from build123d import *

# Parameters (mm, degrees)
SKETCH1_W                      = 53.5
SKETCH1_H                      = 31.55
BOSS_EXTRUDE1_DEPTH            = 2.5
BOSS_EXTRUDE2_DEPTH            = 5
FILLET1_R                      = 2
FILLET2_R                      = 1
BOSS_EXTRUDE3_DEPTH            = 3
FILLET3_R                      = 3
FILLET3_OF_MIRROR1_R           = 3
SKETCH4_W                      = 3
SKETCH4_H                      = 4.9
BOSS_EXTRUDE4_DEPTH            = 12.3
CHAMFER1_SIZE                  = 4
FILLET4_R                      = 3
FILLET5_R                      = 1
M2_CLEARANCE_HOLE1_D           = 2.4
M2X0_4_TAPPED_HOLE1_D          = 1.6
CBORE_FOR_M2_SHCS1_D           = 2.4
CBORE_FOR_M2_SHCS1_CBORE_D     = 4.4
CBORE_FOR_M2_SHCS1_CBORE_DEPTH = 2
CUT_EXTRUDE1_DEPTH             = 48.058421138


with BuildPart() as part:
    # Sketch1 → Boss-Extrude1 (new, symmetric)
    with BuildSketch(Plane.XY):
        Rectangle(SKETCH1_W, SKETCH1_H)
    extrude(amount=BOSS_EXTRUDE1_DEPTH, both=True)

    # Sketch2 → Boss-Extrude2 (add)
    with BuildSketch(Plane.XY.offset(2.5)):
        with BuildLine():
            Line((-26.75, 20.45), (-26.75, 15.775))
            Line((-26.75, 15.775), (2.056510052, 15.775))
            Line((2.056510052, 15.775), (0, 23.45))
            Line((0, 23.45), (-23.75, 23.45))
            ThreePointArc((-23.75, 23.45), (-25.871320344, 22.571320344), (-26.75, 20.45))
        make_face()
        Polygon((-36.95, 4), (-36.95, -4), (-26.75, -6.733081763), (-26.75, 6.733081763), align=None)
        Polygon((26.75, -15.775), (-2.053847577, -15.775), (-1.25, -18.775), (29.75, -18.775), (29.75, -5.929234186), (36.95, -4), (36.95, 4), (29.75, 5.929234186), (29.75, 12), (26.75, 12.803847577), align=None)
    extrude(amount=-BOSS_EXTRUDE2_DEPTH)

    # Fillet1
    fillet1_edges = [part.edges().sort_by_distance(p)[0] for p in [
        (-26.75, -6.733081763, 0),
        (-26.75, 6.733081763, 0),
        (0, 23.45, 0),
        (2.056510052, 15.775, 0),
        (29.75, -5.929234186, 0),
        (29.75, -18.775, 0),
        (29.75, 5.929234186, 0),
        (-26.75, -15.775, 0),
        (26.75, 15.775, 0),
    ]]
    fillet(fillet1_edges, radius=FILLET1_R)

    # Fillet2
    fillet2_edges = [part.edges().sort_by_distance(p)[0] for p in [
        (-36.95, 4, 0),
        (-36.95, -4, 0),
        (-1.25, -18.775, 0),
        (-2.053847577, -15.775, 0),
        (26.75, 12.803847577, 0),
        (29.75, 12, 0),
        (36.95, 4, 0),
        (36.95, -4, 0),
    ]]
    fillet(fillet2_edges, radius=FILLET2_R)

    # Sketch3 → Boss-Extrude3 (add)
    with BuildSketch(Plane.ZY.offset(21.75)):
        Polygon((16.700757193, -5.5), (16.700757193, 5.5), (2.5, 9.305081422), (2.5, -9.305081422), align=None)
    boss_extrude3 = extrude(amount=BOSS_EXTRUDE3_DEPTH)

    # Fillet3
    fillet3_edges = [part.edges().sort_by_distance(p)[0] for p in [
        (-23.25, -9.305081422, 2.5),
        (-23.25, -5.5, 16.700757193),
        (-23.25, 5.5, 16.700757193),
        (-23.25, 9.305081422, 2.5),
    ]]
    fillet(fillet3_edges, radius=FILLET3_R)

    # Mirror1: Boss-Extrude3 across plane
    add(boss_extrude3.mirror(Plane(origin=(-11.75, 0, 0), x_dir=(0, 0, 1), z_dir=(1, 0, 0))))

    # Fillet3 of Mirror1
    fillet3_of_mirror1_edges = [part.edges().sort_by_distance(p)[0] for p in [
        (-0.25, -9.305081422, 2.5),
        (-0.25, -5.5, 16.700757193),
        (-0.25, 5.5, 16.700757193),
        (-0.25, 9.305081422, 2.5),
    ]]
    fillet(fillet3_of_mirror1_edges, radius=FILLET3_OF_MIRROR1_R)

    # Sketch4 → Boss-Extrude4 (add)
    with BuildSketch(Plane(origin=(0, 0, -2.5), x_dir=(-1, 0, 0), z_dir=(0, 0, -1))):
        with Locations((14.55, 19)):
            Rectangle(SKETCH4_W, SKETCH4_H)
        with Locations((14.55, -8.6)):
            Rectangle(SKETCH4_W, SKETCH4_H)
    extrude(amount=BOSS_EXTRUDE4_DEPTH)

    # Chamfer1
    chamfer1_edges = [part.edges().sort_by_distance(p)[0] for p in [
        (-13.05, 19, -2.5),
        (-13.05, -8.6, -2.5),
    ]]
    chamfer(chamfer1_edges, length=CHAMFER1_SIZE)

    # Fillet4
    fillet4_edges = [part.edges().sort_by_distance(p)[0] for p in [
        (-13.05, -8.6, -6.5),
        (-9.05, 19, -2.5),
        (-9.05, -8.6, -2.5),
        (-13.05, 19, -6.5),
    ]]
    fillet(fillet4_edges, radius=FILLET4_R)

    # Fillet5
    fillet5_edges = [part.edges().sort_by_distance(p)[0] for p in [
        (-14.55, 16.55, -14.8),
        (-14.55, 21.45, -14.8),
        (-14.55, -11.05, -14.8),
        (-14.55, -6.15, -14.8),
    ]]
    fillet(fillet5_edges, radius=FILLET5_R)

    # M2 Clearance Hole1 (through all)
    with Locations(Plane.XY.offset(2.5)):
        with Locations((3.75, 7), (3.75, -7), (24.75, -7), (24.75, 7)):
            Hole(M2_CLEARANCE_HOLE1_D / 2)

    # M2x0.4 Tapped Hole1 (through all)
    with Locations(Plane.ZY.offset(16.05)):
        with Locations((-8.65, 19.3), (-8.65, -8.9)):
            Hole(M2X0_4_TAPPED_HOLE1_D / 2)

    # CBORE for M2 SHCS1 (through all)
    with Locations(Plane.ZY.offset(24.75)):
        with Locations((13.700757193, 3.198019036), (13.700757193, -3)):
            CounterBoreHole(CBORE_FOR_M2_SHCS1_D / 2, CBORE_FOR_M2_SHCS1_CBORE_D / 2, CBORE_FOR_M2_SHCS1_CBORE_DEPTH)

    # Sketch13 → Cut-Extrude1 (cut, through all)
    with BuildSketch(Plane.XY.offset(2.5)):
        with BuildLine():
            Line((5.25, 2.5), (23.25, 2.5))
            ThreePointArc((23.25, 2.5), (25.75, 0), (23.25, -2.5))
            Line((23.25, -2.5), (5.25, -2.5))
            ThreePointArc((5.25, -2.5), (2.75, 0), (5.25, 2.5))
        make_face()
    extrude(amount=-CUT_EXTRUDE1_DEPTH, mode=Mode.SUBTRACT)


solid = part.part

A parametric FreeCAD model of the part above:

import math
import FreeCAD as App
import Part
import Sketcher
from FreeCAD import Vector
Q = App.Units.Quantity


def edges_at(feature, points):
    """Names of the edges that pass closest to the given points."""
    edges = feature.Shape.Edges
    near = lambda p: min(range(len(edges)), key=lambda i: edges[i].distToShape(Part.Vertex(*p))[0])
    return sorted({f"Edge{near(p) + 1}" for p in points})

doc = App.newDocument("Part")
body = doc.addObject("PartDesign::Body", "Body")

sketch1 = body.newObject("Sketcher::SketchObject", "Sketch")
sketch1.AttachmentSupport = (doc.getObject("XY_Plane"), [""])
sketch1.MapMode = "FlatFace"
sketch1.addGeometry([
    Part.LineSegment(Vector(-27, 16, 0), Vector(-27, -16, 0)),
    Part.LineSegment(Vector(-27, -16, 0), Vector(27, -16, 0)),
    Part.LineSegment(Vector(27, -16, 0), Vector(27, 16, 0)),
    Part.LineSegment(Vector(27, 16, 0), Vector(-27, 16, 0)),
], False)
sketch1.addConstraint([
    Sketcher.Constraint("Coincident", 0, 2, 1, 1),
    Sketcher.Constraint("Coincident", 1, 2, 2, 1),
    Sketcher.Constraint("Coincident", 2, 2, 3, 1),
    Sketcher.Constraint("Coincident", 3, 2, 0, 1),
    Sketcher.Constraint("Vertical", 0),
    Sketcher.Constraint("Horizontal", 1),
    Sketcher.Constraint("Vertical", 2),
    Sketcher.Constraint("Horizontal", 3),
    Sketcher.Constraint("Symmetric", 0, 2, 2, 2, -1, 1),
    Sketcher.Constraint("DistanceX", 1, 1, 1, 2, 53.5),
    Sketcher.Constraint("DistanceY", 0, 2, 0, 1, 31.55),
])
pad1 = body.newObject("PartDesign::Pad", "Pad")
pad1.Profile = sketch1
pad1.Length = 5
pad1.Midplane = True

sketch2 = body.newObject("Sketcher::SketchObject", "Sketch001")
sketch2.AttachmentSupport = (doc.getObject("XY_Plane"), [""])
sketch2.MapMode = "FlatFace"
sketch2.AttachmentOffset = App.Placement(Vector(0, 0, 2.5), App.Rotation())
sketch2.addGeometry([
    Part.LineSegment(Vector(-26.8, 20.4, 0), Vector(-26.8, 15.8, 0)),
    Part.LineSegment(Vector(-26.8, 15.8, 0), Vector(2.1, 15.8, 0)),
    Part.LineSegment(Vector(2.1, 15.8, 0), Vector(0, 23.4, 0)),
    Part.LineSegment(Vector(0, 23.4, 0), Vector(-23.8, 23.4, 0)),
    Part.ArcOfCircle(Part.Circle(Vector(-23.8, 20.5, 0), Vector(0, 0, 1), 3), math.radians(90), math.radians(180)),
    Part.LineSegment(Vector(-37, 4, 0), Vector(-37, -4, 0)),
    Part.LineSegment(Vector(-37, -4, 0), Vector(-26.8, -6.7, 0)),
    Part.LineSegment(Vector(-26.8, -6.7, 0), Vector(-26.8, 6.7, 0)),
    Part.LineSegment(Vector(-26.8, 6.7, 0), Vector(-37, 4, 0)),
    Part.LineSegment(Vector(26.8, -15.8, 0), Vector(-2.1, -15.8, 0)),
    Part.LineSegment(Vector(-2.1, -15.8, 0), Vector(-1.2, -18.8, 0)),
    Part.LineSegment(Vector(-1.2, -18.8, 0), Vector(29.8, -18.8, 0)),
    Part.LineSegment(Vector(29.8, -18.8, 0), Vector(29.8, -5.9, 0)),
    Part.LineSegment(Vector(29.8, -5.9, 0), Vector(37, -4, 0)),
    Part.LineSegment(Vector(37, -4, 0), Vector(37, 4, 0)),
    Part.LineSegment(Vector(37, 4, 0), Vector(29.8, 5.9, 0)),
    Part.LineSegment(Vector(29.8, 5.9, 0), Vector(29.8, 12, 0)),
    Part.LineSegment(Vector(29.8, 12, 0), Vector(26.8, 12.8, 0)),
    Part.LineSegment(Vector(26.8, 12.8, 0), Vector(26.8, -15.8, 0)),
], False)
sketch2.addConstraint([
    Sketcher.Constraint("Coincident", 0, 2, 1, 1),
    Sketcher.Constraint("Coincident", 1, 2, 2, 1),
    Sketcher.Constraint("Coincident", 2, 2, 3, 1),
    Sketcher.Constraint("Tangent", 3, 2, 4, 1),
    Sketcher.Constraint("Tangent", 4, 2, 0, 1),
    Sketcher.Constraint("Coincident", 5, 2, 6, 1),
    Sketcher.Constraint("Coincident", 6, 2, 7, 1),
    Sketcher.Constraint("Coincident", 7, 2, 8, 1),
    Sketcher.Constraint("Coincident", 8, 2, 5, 1),
    Sketcher.Constraint("Coincident", 9, 2, 10, 1),
    Sketcher.Constraint("Coincident", 10, 2, 11, 1),
    Sketcher.Constraint("Coincident", 11, 2, 12, 1),
    Sketcher.Constraint("Coincident", 12, 2, 13, 1),
    Sketcher.Constraint("Coincident", 13, 2, 14, 1),
    Sketcher.Constraint("Coincident", 14, 2, 15, 1),
    Sketcher.Constraint("Coincident", 15, 2, 16, 1),
    Sketcher.Constraint("Coincident", 16, 2, 17, 1),
    Sketcher.Constraint("Coincident", 17, 2, 18, 1),
    Sketcher.Constraint("Coincident", 18, 2, 9, 1),
    Sketcher.Constraint("Vertical", 0),
    Sketcher.Constraint("Horizontal", 1),
    Sketcher.Constraint("Horizontal", 3),
    Sketcher.Constraint("Vertical", 5),
    Sketcher.Constraint("Vertical", 7),
    Sketcher.Constraint("Horizontal", 9),
    Sketcher.Constraint("Horizontal", 11),
    Sketcher.Constraint("Vertical", 12),
    Sketcher.Constraint("Vertical", 14),
    Sketcher.Constraint("Vertical", 16),
    Sketcher.Constraint("Vertical", 18),
    Sketcher.Constraint("Symmetric", 8, 2, 13, 2, -1, 1),
    Sketcher.Constraint("Symmetric", 0, 2, 18, 2, -1, 1),
    Sketcher.Constraint("Symmetric", 12, 2, 15, 2, -1),
    Sketcher.Constraint("PointOnObject", 2, 2, -2),
    Sketcher.Constraint("Perpendicular", 2, 8),
    Sketcher.Constraint("Perpendicular", 8, 10),
    Sketcher.Constraint("Perpendicular", 10, 13),
    Sketcher.Constraint("Parallel", 6, 15),
    Sketcher.Constraint("Parallel", 15, 17),
    Sketcher.Constraint("Horizontal", 5, 2, 13, 2),
    Sketcher.Constraint("Horizontal", 8, 2, 14, 2),
    Sketcher.Constraint("Vertical", 4, 2, 6, 2),
    Sketcher.Constraint("Equal", 10, 17),
    Sketcher.Constraint("Radius", 4, 3.0),
    Sketcher.Constraint("DistanceX", 11, 1, 11, 2, 31.0),
    Sketcher.Constraint("DistanceY", 5, 2, 5, 1, 8.0),
    Sketcher.Constraint("Angle", 2, Q("105 deg")),
    Sketcher.Constraint("DistanceY", -1, 1, 16, 2, 12.0),
    Sketcher.Constraint("DistanceY", 10, 2, 9, 2, 3.0),
    Sketcher.Constraint("DistanceX", 3, 2, 3, 1, 23.75),
    Sketcher.Constraint("DistanceX", 5, 2, 0, 2, 10.2),
    Sketcher.Constraint("DistanceY", 0, 2, 0, 1, 4.675),
    Sketcher.Constraint("DistanceY", -1, 1, 4, 3, 20.45),
])
pad2 = body.newObject("PartDesign::Pad", "Pad001")
pad2.Profile = sketch2
pad2.Length = 5
pad2.Reversed = True
doc.recompute()

fillet = body.newObject("PartDesign::Fillet", "Fillet")
fillet.Base = (pad2, edges_at(pad2, [
    (-26.75, -6.733, 0),
    (-26.75, 6.733, 0),
    (0, 23.45, 0),
    (2.057, 15.775, 0),
    (29.75, -5.929, 0),
    (29.75, -18.775, 0),
    (29.75, 5.929, 0),
    (-26.75, -15.775, 0),
    (26.75, 15.775, 0),
]))
fillet.Radius = 2
doc.recompute()

fillet2 = body.newObject("PartDesign::Fillet", "Fillet001")
fillet2.Base = (fillet, edges_at(fillet, [
    (-36.95, 4, 0),
    (-36.95, -4, 0),
    (-1.25, -18.775, 0),
    (-2.054, -15.775, 0),
    (26.75, 12.804, 0),
    (29.75, 12, 0),
    (36.95, 4, 0),
    (36.95, -4, 0),
]))
fillet2.Radius = 1

sketch3 = body.newObject("Sketcher::SketchObject", "Sketch002")
sketch3.AttachmentSupport = (doc.getObject("YZ_Plane"), [""])
sketch3.MapMode = "FlatFace"
sketch3.AttachmentOffset = App.Placement(Vector(0, 0, -21.75), App.Rotation())
sketch3.addGeometry([
    Part.LineSegment(Vector(-6, 17, 0), Vector(6, 17, 0)),
    Part.LineSegment(Vector(6, 17, 0), Vector(9, 2, 0)),
    Part.LineSegment(Vector(9, 2, 0), Vector(-9, 2, 0)),
    Part.LineSegment(Vector(-9, 2, 0), Vector(-6, 17, 0)),
], False)
sketch3.addConstraint([
    Sketcher.Constraint("Coincident", 0, 2, 1, 1),
    Sketcher.Constraint("Coincident", 1, 2, 2, 1),
    Sketcher.Constraint("Coincident", 2, 2, 3, 1),
    Sketcher.Constraint("Coincident", 3, 2, 0, 1),
    Sketcher.Constraint("Horizontal", 0),
    Sketcher.Constraint("Horizontal", 2),
    Sketcher.Constraint("Equal", 1, 3),
    Sketcher.Constraint("DistanceX", 0, 1, 0, 2, 11.0),
    Sketcher.Constraint("Angle", 1, Q("-75 deg")),
    Sketcher.Constraint("DistanceX", -1, 1, 0, 2, 5.5),
    Sketcher.Constraint("DistanceY", -1, 1, 1, 2, 2.5),
    Sketcher.Constraint("DistanceX", 2, 2, 2, 1, 18.610163),
])
pad3 = body.newObject("PartDesign::Pad", "Pad002")
pad3.Profile = sketch3
pad3.Length = 3
pad3.Reversed = True
doc.recompute()

fillet3 = body.newObject("PartDesign::Fillet", "Fillet002")
fillet3.Base = (pad3, edges_at(pad3, [
    (-23.25, -9.305, 2.5),
    (-23.25, -5.5, 16.701),
    (-23.25, 5.5, 16.701),
    (-23.25, 9.305, 2.5),
]))
fillet3.Radius = 3
doc.recompute()

datumplane = body.newObject("PartDesign::Plane", "DatumPlane")
datumplane.AttachmentSupport = (doc.getObject("YZ_Plane"), [""])
datumplane.MapMode = "FlatFace"
datumplane.AttachmentOffset = App.Placement(Vector(0, 0, -11.75), App.Rotation())
mirrored = body.newObject("PartDesign::Mirrored", "Mirrored")
mirrored.Originals = [pad3]
mirrored.MirrorPlane = (datumplane, [""])
body.Tip = mirrored
doc.recompute()

fillet4 = body.newObject("PartDesign::Fillet", "Fillet003")
fillet4.Base = (mirrored, edges_at(mirrored, [
    (-0.25, -9.305, 2.5),
    (-0.25, -5.5, 16.701),
    (-0.25, 5.5, 16.701),
    (-0.25, 9.305, 2.5),
]))
fillet4.Radius = 3

sketch4 = body.newObject("Sketcher::SketchObject", "Sketch003")
sketch4.AttachmentSupport = (doc.getObject("XY_Plane"), [""])
sketch4.MapMode = "FlatFace"
sketch4.AttachmentOffset = App.Placement(Vector(0, 0, -2.5), App.Rotation())
sketch4.addGeometry([
    Part.LineSegment(Vector(-13.1, 21.4, 0), Vector(-13.1, 16.6, 0)),
    Part.LineSegment(Vector(-13.1, 16.6, 0), Vector(-16.1, 16.6, 0)),
    Part.LineSegment(Vector(-16.1, 16.6, 0), Vector(-16.1, 21.4, 0)),
    Part.LineSegment(Vector(-16.1, 21.4, 0), Vector(-13.1, 21.4, 0)),
    Part.LineSegment(Vector(-13.1, -6.2, 0), Vector(-13.1, -11.1, 0)),
    Part.LineSegment(Vector(-13.1, -11.1, 0), Vector(-16.1, -11.1, 0)),
    Part.LineSegment(Vector(-16.1, -11.1, 0), Vector(-16.1, -6.2, 0)),
    Part.LineSegment(Vector(-16.1, -6.2, 0), Vector(-13.1, -6.2, 0)),
], False)
sketch4.addConstraint([
    Sketcher.Constraint("Coincident", 0, 2, 1, 1),
    Sketcher.Constraint("Coincident", 1, 2, 2, 1),
    Sketcher.Constraint("Coincident", 2, 2, 3, 1),
    Sketcher.Constraint("Coincident", 3, 2, 0, 1),
    Sketcher.Constraint("Coincident", 4, 2, 5, 1),
    Sketcher.Constraint("Coincident", 5, 2, 6, 1),
    Sketcher.Constraint("Coincident", 6, 2, 7, 1),
    Sketcher.Constraint("Coincident", 7, 2, 4, 1),
    Sketcher.Constraint("Vertical", 0),
    Sketcher.Constraint("Horizontal", 1),
    Sketcher.Constraint("Vertical", 2),
    Sketcher.Constraint("Horizontal", 3),
    Sketcher.Constraint("Vertical", 4),
    Sketcher.Constraint("Horizontal", 5),
    Sketcher.Constraint("Vertical", 6),
    Sketcher.Constraint("Horizontal", 7),
    Sketcher.Constraint("Vertical", 3, 2, 4, 2),
    Sketcher.Constraint("Vertical", 2, 2, 5, 2),
    Sketcher.Constraint("Equal", 2, 4),
    Sketcher.Constraint("DistanceX", 1, 2, 1, 1, 3.0),
    Sketcher.Constraint("DistanceY", 0, 2, 0, 1, 4.9),
    Sketcher.Constraint("DistanceY", 4, 2, 0, 2, 27.6),
    Sketcher.Constraint("DistanceX", 0, 2, -1, 1, 13.05),
    Sketcher.Constraint("DistanceY", -1, 1, 0, 2, 16.55),
])
pad4 = body.newObject("PartDesign::Pad", "Pad003")
pad4.Profile = sketch4
pad4.Length = 12.3
pad4.Reversed = True
doc.recompute()

chamfer = body.newObject("PartDesign::Chamfer", "Chamfer")
chamfer.Base = (pad4, edges_at(pad4, [(-13.05, 19, -2.5), (-13.05, -8.6, -2.5)]))
chamfer.Size = 4
doc.recompute()

fillet5 = body.newObject("PartDesign::Fillet", "Fillet004")
fillet5.Base = (chamfer, edges_at(chamfer, [
    (-13.05, -8.6, -6.5),
    (-9.05, 19, -2.5),
    (-9.05, -8.6, -2.5),
    (-13.05, 19, -6.5),
]))
fillet5.Radius = 3
doc.recompute()

fillet6 = body.newObject("PartDesign::Fillet", "Fillet005")
fillet6.Base = (fillet5, edges_at(fillet5, [
    (-14.55, 16.55, -14.8),
    (-14.55, 21.45, -14.8),
    (-14.55, -11.05, -14.8),
    (-14.55, -6.15, -14.8),
]))
fillet6.Radius = 1

sketch5 = body.newObject("Sketcher::SketchObject", "Sketch004")
sketch5.AttachmentSupport = (doc.getObject("XY_Plane"), [""])
sketch5.MapMode = "FlatFace"
sketch5.AttachmentOffset = App.Placement(Vector(0, 0, 2.5), App.Rotation())
sketch5.addGeometry([
    Part.Circle(Vector(3.8, 7, 0), Vector(0, 0, 1), 1.2),
    Part.Circle(Vector(3.8, -7, 0), Vector(0, 0, 1), 1.2),
    Part.Circle(Vector(24.8, -7, 0), Vector(0, 0, 1), 1.2),
    Part.Circle(Vector(24.8, 7, 0), Vector(0, 0, 1), 1.2),
], False)
sketch5.addConstraint([
    Sketcher.Constraint("Equal", 0, 1),
    Sketcher.Constraint("Equal", 1, 2),
    Sketcher.Constraint("Equal", 2, 3),
    Sketcher.Constraint("Symmetric", 0, 3, 1, 3, -1),
    Sketcher.Constraint("Symmetric", 2, 3, 3, 3, -1),
    Sketcher.Constraint("Horizontal", 1, 3, 2, 3),
    Sketcher.Constraint("Diameter", 0, 2.4),
    Sketcher.Constraint("DistanceY", -1, 1, 0, 3, 7.0),
    Sketcher.Constraint("DistanceX", 1, 3, 2, 3, 21.0),
    Sketcher.Constraint("DistanceX", -1, 1, 0, 3, 3.75),
])
doc.recompute()
hole = body.newObject("PartDesign::Hole", "Hole")
hole.Profile = sketch5
hole.ThreadType = "None"
hole.Diameter = 2.4
hole.DepthType = "ThroughAll"

sketch6 = body.newObject("Sketcher::SketchObject", "Sketch005")
sketch6.AttachmentSupport = (doc.getObject("YZ_Plane"), [""])
sketch6.MapMode = "FlatFace"
sketch6.AttachmentOffset = App.Placement(Vector(0, 0, -16.05), App.Rotation())
sketch6.addGeometry([
    Part.Circle(Vector(19.3, -8.7, 0), Vector(0, 0, 1), 0.8),
    Part.Circle(Vector(-8.9, -8.7, 0), Vector(0, 0, 1), 0.8),
], False)
sketch6.addConstraint([
    Sketcher.Constraint("Equal", 0, 1),
    Sketcher.Constraint("Horizontal", 0, 3, 1, 3),
    Sketcher.Constraint("Diameter", 0, 1.6),
    Sketcher.Constraint("DistanceX", -1, 1, 0, 3, 19.3),
    Sketcher.Constraint("DistanceX", 1, 3, -1, 1, 8.9),
    Sketcher.Constraint("DistanceY", 0, 3, -1, 1, 8.65),
])
doc.recompute()
hole2 = body.newObject("PartDesign::Hole", "Hole001")
hole2.Profile = sketch6
hole2.ThreadType = "None"
hole2.Diameter = 1.6
hole2.DepthType = "ThroughAll"
hole2.Reversed = True

sketch7 = body.newObject("Sketcher::SketchObject", "Sketch006")
sketch7.AttachmentSupport = (doc.getObject("YZ_Plane"), [""])
sketch7.MapMode = "FlatFace"
sketch7.AttachmentOffset = App.Placement(Vector(0, 0, -24.75), App.Rotation())
sketch7.addGeometry([
    Part.Circle(Vector(3.2, 13.7, 0), Vector(0, 0, 1), 1.2),
    Part.Circle(Vector(-3, 13.7, 0), Vector(0, 0, 1), 1.2),
], False)
sketch7.addConstraint([
    Sketcher.Constraint("Equal", 0, 1),
    Sketcher.Constraint("Horizontal", 0, 3, 1, 3),
    Sketcher.Constraint("Diameter", 0, 2.4),
    Sketcher.Constraint("DistanceX", 1, 3, -1, 1, 3.0),
    Sketcher.Constraint("DistanceX", -1, 1, 0, 3, 3.198019),
    Sketcher.Constraint("DistanceY", -1, 1, 0, 3, 13.700757),
])
doc.recompute()
hole3 = body.newObject("PartDesign::Hole", "Hole002")
hole3.Profile = sketch7
hole3.ThreadType = "None"
hole3.Diameter = 2.4
hole3.DepthType = "ThroughAll"
hole3.HoleCutType = "Counterbore"
hole3.HoleCutDiameter = 4.4
hole3.HoleCutDepth = 2
hole3.Reversed = True

sketch8 = body.newObject("Sketcher::SketchObject", "Sketch007")
sketch8.AttachmentSupport = (doc.getObject("XY_Plane"), [""])
sketch8.MapMode = "FlatFace"
sketch8.AttachmentOffset = App.Placement(Vector(0, 0, 2.5), App.Rotation())
sketch8.addGeometry([
    Part.LineSegment(Vector(23.2, 2.5, 0), Vector(5.2, 2.5, 0)),
    Part.ArcOfCircle(Part.Circle(Vector(5.2, 0, 0), Vector(0, 0, 1), 2.5), math.radians(90), math.radians(270)),
    Part.LineSegment(Vector(5.2, -2.5, 0), Vector(23.2, -2.5, 0)),
    Part.ArcOfCircle(Part.Circle(Vector(23.2, 0, 0), Vector(0, 0, 1), 2.5), math.radians(-90), math.radians(90)),
], False)
sketch8.addConstraint([
    Sketcher.Constraint("Tangent", 0, 2, 1, 1),
    Sketcher.Constraint("Tangent", 1, 2, 2, 1),
    Sketcher.Constraint("Tangent", 2, 2, 3, 1),
    Sketcher.Constraint("Tangent", 3, 2, 0, 1),
    Sketcher.Constraint("Horizontal", 0),
    Sketcher.Constraint("Horizontal", 2),
    Sketcher.Constraint("PointOnObject", 1, 3, -1),
    Sketcher.Constraint("Radius", 1, 2.5),
    Sketcher.Constraint("DistanceX", 0, 2, 0, 1, 18.0),
    Sketcher.Constraint("DistanceX", -1, 1, 1, 3, 5.25),
])
pocket1 = body.newObject("PartDesign::Pocket", "Pocket")
pocket1.Profile = sketch8
pocket1.Type = "ThroughAll"

doc.recompute()
